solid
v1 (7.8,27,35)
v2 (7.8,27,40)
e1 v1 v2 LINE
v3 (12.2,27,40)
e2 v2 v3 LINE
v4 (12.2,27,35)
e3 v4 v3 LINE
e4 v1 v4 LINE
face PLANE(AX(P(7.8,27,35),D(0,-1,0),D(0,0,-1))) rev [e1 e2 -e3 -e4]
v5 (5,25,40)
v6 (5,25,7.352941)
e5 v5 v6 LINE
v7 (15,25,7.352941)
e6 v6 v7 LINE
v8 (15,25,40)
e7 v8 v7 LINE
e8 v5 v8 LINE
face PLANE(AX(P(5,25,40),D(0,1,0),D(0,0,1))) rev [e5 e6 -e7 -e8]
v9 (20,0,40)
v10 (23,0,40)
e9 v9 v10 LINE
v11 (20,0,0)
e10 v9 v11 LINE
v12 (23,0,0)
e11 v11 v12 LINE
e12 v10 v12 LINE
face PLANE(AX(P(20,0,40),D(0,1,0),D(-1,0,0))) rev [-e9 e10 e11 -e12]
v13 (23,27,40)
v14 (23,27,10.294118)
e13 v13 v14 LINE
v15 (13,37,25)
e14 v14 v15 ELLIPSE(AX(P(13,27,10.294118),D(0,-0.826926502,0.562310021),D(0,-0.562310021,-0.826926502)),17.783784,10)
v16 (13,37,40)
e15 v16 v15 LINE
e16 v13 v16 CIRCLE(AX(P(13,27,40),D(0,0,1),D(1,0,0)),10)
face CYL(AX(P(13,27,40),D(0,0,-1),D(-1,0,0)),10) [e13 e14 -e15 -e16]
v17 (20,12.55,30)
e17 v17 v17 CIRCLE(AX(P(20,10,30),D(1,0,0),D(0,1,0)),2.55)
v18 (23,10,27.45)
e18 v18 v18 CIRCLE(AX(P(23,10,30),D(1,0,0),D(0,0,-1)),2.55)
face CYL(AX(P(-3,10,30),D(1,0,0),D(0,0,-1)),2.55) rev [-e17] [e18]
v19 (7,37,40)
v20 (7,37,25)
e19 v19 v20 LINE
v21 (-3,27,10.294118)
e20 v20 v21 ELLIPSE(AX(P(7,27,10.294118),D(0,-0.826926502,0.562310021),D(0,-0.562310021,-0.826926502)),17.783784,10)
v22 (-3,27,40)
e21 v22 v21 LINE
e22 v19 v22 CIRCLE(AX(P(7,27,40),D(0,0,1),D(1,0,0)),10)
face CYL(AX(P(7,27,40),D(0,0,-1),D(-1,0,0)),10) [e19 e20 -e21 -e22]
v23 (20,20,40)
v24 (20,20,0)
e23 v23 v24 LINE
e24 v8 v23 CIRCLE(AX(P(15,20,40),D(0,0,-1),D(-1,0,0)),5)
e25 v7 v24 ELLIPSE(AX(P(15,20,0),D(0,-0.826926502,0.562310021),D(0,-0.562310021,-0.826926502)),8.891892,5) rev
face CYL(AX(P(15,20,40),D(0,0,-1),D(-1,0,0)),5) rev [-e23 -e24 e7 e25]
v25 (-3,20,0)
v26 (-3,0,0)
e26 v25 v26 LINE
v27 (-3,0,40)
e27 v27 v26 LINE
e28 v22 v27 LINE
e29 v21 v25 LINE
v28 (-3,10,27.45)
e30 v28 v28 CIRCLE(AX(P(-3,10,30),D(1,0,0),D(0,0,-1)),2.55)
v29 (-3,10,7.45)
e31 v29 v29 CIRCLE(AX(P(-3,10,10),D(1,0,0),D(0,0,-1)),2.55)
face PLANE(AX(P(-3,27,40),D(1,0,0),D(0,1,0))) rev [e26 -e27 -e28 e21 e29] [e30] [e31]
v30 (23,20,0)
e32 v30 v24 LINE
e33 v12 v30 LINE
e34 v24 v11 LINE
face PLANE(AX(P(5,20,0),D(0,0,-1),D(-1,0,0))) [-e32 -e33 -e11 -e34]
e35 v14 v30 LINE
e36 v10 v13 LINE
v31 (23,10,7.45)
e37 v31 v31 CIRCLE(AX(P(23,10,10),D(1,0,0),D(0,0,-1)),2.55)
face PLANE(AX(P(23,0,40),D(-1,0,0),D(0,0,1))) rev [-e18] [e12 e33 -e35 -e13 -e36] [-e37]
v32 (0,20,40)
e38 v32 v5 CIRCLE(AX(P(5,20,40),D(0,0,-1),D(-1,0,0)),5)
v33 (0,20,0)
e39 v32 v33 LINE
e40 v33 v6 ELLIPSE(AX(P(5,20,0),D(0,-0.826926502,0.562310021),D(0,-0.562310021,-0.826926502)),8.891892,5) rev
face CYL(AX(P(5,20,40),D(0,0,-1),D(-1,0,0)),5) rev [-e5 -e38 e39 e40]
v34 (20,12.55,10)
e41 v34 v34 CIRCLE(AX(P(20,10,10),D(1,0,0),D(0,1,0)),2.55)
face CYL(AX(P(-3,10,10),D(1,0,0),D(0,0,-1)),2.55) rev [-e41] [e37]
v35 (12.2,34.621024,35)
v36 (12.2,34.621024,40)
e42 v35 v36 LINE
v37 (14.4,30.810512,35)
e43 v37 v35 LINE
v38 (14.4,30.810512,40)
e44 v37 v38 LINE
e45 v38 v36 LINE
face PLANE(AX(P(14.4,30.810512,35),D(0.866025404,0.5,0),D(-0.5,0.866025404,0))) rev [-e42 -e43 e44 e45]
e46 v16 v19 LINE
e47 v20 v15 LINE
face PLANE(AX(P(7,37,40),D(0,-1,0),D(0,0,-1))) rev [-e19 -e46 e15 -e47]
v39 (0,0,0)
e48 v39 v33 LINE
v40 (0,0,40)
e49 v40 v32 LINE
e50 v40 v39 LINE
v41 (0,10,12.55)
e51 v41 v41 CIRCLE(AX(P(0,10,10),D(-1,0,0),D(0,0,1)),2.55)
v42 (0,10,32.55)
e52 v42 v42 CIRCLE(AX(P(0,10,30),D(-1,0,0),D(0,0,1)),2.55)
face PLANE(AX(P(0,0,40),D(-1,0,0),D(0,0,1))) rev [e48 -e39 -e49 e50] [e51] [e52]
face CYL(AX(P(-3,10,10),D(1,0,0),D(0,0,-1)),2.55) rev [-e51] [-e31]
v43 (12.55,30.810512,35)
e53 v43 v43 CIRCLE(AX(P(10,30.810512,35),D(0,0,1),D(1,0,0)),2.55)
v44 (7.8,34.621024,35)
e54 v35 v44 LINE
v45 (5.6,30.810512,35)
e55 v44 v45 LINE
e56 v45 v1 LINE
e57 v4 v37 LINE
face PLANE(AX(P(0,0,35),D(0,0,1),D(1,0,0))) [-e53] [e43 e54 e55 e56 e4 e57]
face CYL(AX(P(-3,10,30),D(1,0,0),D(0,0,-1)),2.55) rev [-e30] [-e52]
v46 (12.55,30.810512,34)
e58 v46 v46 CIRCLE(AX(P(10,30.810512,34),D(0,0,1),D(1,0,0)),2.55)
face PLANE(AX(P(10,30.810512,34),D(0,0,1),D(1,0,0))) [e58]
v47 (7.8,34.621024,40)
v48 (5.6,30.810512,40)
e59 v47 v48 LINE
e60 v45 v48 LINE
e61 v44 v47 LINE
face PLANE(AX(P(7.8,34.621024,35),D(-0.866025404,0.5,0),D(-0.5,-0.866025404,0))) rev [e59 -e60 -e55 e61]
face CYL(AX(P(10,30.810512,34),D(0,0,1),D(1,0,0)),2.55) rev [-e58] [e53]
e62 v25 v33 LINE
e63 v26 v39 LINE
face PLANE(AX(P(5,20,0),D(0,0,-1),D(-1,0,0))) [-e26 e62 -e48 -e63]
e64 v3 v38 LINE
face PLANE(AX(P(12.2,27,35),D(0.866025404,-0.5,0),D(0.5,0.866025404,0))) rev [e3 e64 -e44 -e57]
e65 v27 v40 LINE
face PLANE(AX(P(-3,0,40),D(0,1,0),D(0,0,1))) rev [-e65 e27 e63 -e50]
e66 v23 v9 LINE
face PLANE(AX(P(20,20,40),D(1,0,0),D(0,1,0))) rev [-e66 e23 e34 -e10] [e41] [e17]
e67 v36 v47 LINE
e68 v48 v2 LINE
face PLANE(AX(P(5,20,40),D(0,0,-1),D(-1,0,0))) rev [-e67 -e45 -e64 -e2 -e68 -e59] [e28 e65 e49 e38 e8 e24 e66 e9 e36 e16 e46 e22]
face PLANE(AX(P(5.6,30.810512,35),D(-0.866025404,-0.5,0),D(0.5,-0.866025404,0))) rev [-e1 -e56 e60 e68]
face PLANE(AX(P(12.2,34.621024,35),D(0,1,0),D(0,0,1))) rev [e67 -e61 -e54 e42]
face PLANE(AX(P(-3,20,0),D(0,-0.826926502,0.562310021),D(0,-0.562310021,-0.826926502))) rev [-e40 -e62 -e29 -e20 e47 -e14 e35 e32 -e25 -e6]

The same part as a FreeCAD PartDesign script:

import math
import FreeCAD as App
import Part
import Sketcher
Q = App.Units.Quantity

doc = App.newDocument("Part")
params = doc.addObject("Spreadsheet::Sheet", "Params")
for row, (alias, value) in enumerate([
    ("sketch1_radius", "5 mm"),
    ("sketch1_radius2", "10 mm"),
    ("sketch1_width", "10 mm"),
    ("sketch1_width2", "3 mm"),
    ("sketch1_height", "20 mm"),
    ("pad1_length", "40 mm"),
    ("sketch2_width", "17 mm"),
    ("sketch2_height", "25 mm"),
    ("sketch3_diameter", "5.1 mm"),
    ("sketch4_width", "4.4 mm"),
    ("sketch4_length", "4.4 mm"),
    ("pocket3_length", "5 mm"),
    ("sketch5_diameter", "5.1 mm"),
    ("pocket4_length", "1 mm"),
], start=1):
    params.set(f"A{row}", alias)
    params.set(f"B{row}", "=" + value)
    params.setAlias(f"B{row}", alias)

body = doc.addObject("PartDesign::Body", "Body")

sketch1 = doc.addObject("Sketcher::SketchObject", "Sketch")
body.addObject(sketch1)
sketch1.AttachmentSupport = (doc.XY_Plane, [""])
sketch1.MapMode = "FlatFace"
sketch1.addGeometry(Part.LineSegment(App.Vector(0, 0, 0), App.Vector(0, 20, 0)), False)
sketch1.addGeometry(Part.ArcOfCircle(Part.Circle(App.Vector(5, 20, 0), App.Vector(0, 0, 1), 5), math.radians(90), math.radians(180)), False)
sketch1.addGeometry(Part.LineSegment(App.Vector(5, 25, 0), App.Vector(15, 25, 0)), False)
sketch1.addGeometry(Part.ArcOfCircle(Part.Circle(App.Vector(15, 20, 0), App.Vector(0, 0, 1), 5), math.radians(0), math.radians(90)), False)
sketch1.addGeometry(Part.LineSegment(App.Vector(20, 20, 0), App.Vector(20, 0, 0)), False)
sketch1.addGeometry(Part.LineSegment(App.Vector(20, 0, 0), App.Vector(23, 0, 0)), False)
sketch1.addGeometry(Part.LineSegment(App.Vector(23, 0, 0), App.Vector(23, 27, 0)), False)
sketch1.addGeometry(Part.ArcOfCircle(Part.Circle(App.Vector(13, 27, 0), App.Vector(0, 0, 1), 10), math.radians(0), math.radians(90)), False)
sketch1.addGeometry(Part.LineSegment(App.Vector(13, 37, 0), App.Vector(7, 37, 0)), False)
sketch1.addGeometry(Part.ArcOfCircle(Part.Circle(App.Vector(7, 27, 0), App.Vector(0, 0, 1), 10), math.radians(90), math.radians(180)), False)
sketch1.addGeometry(Part.LineSegment(App.Vector(-3, 27, 0), App.Vector(-3, 0, 0)), False)
sketch1.addGeometry(Part.LineSegment(App.Vector(-3, 0, 0), App.Vector(0, 0, 0)), False)
sketch1.addConstraint(Sketcher.Constraint("Tangent", 0, 2, 1, 2))
sketch1.addConstraint(Sketcher.Constraint("Tangent", 1, 1, 2, 1))
sketch1.addConstraint(Sketcher.Constraint("Tangent", 2, 2, 3, 2))
sketch1.addConstraint(Sketcher.Constraint("Tangent", 3, 1, 4, 1))
sketch1.addConstraint(Sketcher.Constraint("Coincident", 4, 2, 5, 1))
sketch1.addConstraint(Sketcher.Constraint("Coincident", 5, 2, 6, 1))
sketch1.addConstraint(Sketcher.Constraint("Tangent", 6, 2, 7, 1))
sketch1.addConstraint(Sketcher.Constraint("Tangent", 7, 2, 8, 1))
sketch1.addConstraint(Sketcher.Constraint("Tangent", 8, 2, 9, 1))
sketch1.addConstraint(Sketcher.Constraint("Tangent", 9, 2, 10, 1))
sketch1.addConstraint(Sketcher.Constraint("Coincident", 10, 2, 11, 1))
sketch1.addConstraint(Sketcher.Constraint("Coincident", 11, 2, 0, 1))
sketch1.addConstraint(Sketcher.Constraint("Vertical", 0))
sketch1.addConstraint(Sketcher.Constraint("Horizontal", 2))
sketch1.addConstraint(Sketcher.Constraint("Vertical", 4))
sketch1.addConstraint(Sketcher.Constraint("Horizontal", 5))
sketch1.addConstraint(Sketcher.Constraint("Vertical", 6))
sketch1.addConstraint(Sketcher.Constraint("Horizontal", 8))
sketch1.addConstraint(Sketcher.Constraint("Vertical", 10))
sketch1.addConstraint(Sketcher.Constraint("Horizontal", 11))
sketch1.addConstraint(Sketcher.Constraint("Coincident", 11, 2, -1, 1))
sketch1.addConstraint(Sketcher.Constraint("Equal", 1, 3))
sketch1.addConstraint(Sketcher.Constraint("Equal", 7, 9))
sketch1.addConstraint(Sketcher.Constraint("PointOnObject", 4, 2, -1))
sketch1.addConstraint(Sketcher.Constraint("Equal", 5, 11))
sketch1.addConstraint(Sketcher.Constraint("Radius", 1, Q("5 mm")))
sketch1.addConstraint(Sketcher.Constraint("Radius", 7, Q("10 mm")))
sketch1.addConstraint(Sketcher.Constraint("DistanceX", 2, 1, 2, 2, Q("10 mm")))
sketch1.addConstraint(Sketcher.Constraint("DistanceX", 5, 1, 5, 2, Q("3 mm")))
sketch1.addConstraint(Sketcher.Constraint("DistanceY", 0, 1, 0, 2, Q("20 mm")))
sketch1.addConstraint(Sketcher.Constraint("DistanceY", 6, 1, 6, 2, Q("27 mm")))
sketch1.setExpression("Constraints[25]", "Params.sketch1_radius")
sketch1.setExpression("Constraints[26]", "Params.sketch1_radius2")
sketch1.setExpression("Constraints[27]", "Params.sketch1_width")
sketch1.setExpression("Constraints[28]", "Params.sketch1_width2")
sketch1.setExpression("Constraints[29]", "Params.sketch1_height")
pad1 = doc.addObject("PartDesign::Pad", "Pad")
body.addObject(pad1)
pad1.Profile = sketch1
pad1.setExpression("Length", "Params.pad1_length")

sketch2 = doc.addObject("Sketcher::SketchObject", "Sketch001")
body.addObject(sketch2)
sketch2.AttachmentSupport = (doc.YZ_Plane, [""])
sketch2.MapMode = "FlatFace"
sketch2.AttachmentOffset = App.Placement(App.Vector(0, 0, 23), App.Rotation())
sketch2.addGeometry(Part.LineSegment(App.Vector(37, 25, 0), App.Vector(20, 0, 0)), False)
sketch2.addGeometry(Part.LineSegment(App.Vector(20, 0, 0), App.Vector(37, 0, 0)), False)
sketch2.addGeometry(Part.LineSegment(App.Vector(37, 0, 0), App.Vector(37, 25, 0)), False)
sketch2.addConstraint(Sketcher.Constraint("Coincident", 0, 2, 1, 1))
sketch2.addConstraint(Sketcher.Constraint("Coincident", 1, 2, 2, 1))
sketch2.addConstraint(Sketcher.Constraint("Coincident", 2, 2, 0, 1))
sketch2.addConstraint(Sketcher.Constraint("Horizontal", 1))
sketch2.addConstraint(Sketcher.Constraint("Vertical", 2))
sketch2.addConstraint(Sketcher.Constraint("PointOnObject", 0, 2, -1))
sketch2.addConstraint(Sketcher.Constraint("DistanceX", 1, 1, 1, 2, Q("17 mm")))
sketch2.addConstraint(Sketcher.Constraint("DistanceY", 2, 1, 2, 2, Q("25 mm")))
sketch2.addConstraint(Sketcher.Constraint("DistanceX", -1, 1, 0, 2, Q("20 mm")))
sketch2.setExpression("Constraints[6]", "Params.sketch2_width")
sketch2.setExpression("Constraints[7]", "Params.sketch2_height")
pocket1 = doc.addObject("PartDesign::Pocket", "Pocket")
body.addObject(pocket1)
pocket1.Profile = sketch2
pocket1.Type = "ThroughAll"

sketch3 = doc.addObject("Sketcher::SketchObject", "Sketch002")
body.addObject(sketch3)
sketch3.AttachmentSupport = (doc.YZ_Plane, [""])
sketch3.MapMode = "FlatFace"
sketch3.AttachmentOffset = App.Placement(App.Vector(0, 0, 23), App.Rotation())
sketch3.addGeometry(Part.Circle(App.Vector(10, 30, 0), App.Vector(0, 0, 1), 2.5), False)
sketch3.addGeometry(Part.Circle(App.Vector(10, 10, 0), App.Vector(0, 0, 1), 2.5), False)
sketch3.addConstraint(Sketcher.Constraint("Equal", 0, 1))
sketch3.addConstraint(Sketcher.Constraint("Vertical", 0, 3, 1, 3))
sketch3.addConstraint(Sketcher.Constraint("Diameter", 0, Q("5.1 mm")))
sketch3.addConstraint(Sketcher.Constraint("DistanceX", -1, 1, 0, 3, Q("10 mm")))
sketch3.addConstraint(Sketcher.Constraint("DistanceY", -1, 1, 0, 3, Q("30 mm")))
sketch3.addConstraint(Sketcher.Constraint("DistanceY", -1, 1, 1, 3, Q("10 mm")))
sketch3.setExpression("Constraints[2]", "Params.sketch3_diameter")
pocket2 = doc.addObject("PartDesign::Pocket", "Pocket001")
body.addObject(pocket2)
pocket2.Profile = sketch3
pocket2.Type = "ThroughAll"

sketch4 = doc.addObject("Sketcher::SketchObject", "Sketch003")
body.addObject(sketch4)
sketch4.AttachmentSupport = (doc.XY_Plane, [""])
sketch4.MapMode = "FlatFace"
sketch4.AttachmentOffset = App.Placement(App.Vector(0, 0, 40), App.Rotation())
sketch4.addGeometry(Part.LineSegment(App.Vector(5.6, 30.8, 0), App.Vector(7.8, 27, 0)), False)
sketch4.addGeometry(Part.LineSegment(App.Vector(7.8, 27, 0), App.Vector(12.2, 27, 0)), False)
sketch4.addGeometry(Part.LineSegment(App.Vector(12.2, 27, 0), App.Vector(14.4, 30.8, 0)), False)
sketch4.addGeometry(Part.LineSegment(App.Vector(14.4, 30.8, 0), App.Vector(12.2, 34.6, 0)), False)
sketch4.addGeometry(Part.LineSegment(App.Vector(12.2, 34.6, 0), App.Vector(7.8, 34.6, 0)), False)
sketch4.addGeometry(Part.LineSegment(App.Vector(7.8, 34.6, 0), App.Vector(5.6, 30.8, 0)), False)
sketch4.addConstraint(Sketcher.Constraint("Coincident", 0, 2, 1, 1))
sketch4.addConstraint(Sketcher.Constraint("Coincident", 1, 2, 2, 1))
sketch4.addConstraint(Sketcher.Constraint("Coincident", 2, 2, 3, 1))
sketch4.addConstraint(Sketcher.Constraint("Coincident", 3, 2, 4, 1))
sketch4.addConstraint(Sketcher.Constraint("Coincident", 4, 2, 5, 1))
sketch4.addConstraint(Sketcher.Constraint("Coincident", 5, 2, 0, 1))
sketch4.addConstraint(Sketcher.Constraint("Horizontal", 1))
sketch4.addConstraint(Sketcher.Constraint("Horizontal", 4))
sketch4.addConstraint(Sketcher.Constraint("Parallel", 0, 3))
sketch4.addConstraint(Sketcher.Constraint("Parallel", 2, 5))
sketch4.addConstraint(Sketcher.Constraint("Horizontal", 2, 2, 5, 2))
sketch4.addConstraint(Sketcher.Constraint("Vertical", 1, 2, 3, 2))
sketch4.addConstraint(Sketcher.Constraint("Vertical", 0, 2, 4, 2))
sketch4.addConstraint(Sketcher.Constraint("Angle", 0, Q("-60 deg")))
sketch4.addConstraint(Sketcher.Constraint("DistanceX", 1, 1, 1, 2, Q("4.4 mm")))
sketch4.addConstraint(Sketcher.Constraint("DistanceY", -1, 1, 0, 2, Q("27 mm")))
sketch4.addConstraint(Sketcher.Constraint("Distance", 0, Q("4.4 mm")))
sketch4.addConstraint(Sketcher.Constraint("DistanceX", -1, 1, 0, 2, Q("7.8 mm")))
sketch4.setExpression("Constraints[14]", "Params.sketch4_width")
sketch4.setExpression("Constraints[16]", "Params.sketch4_length")
pocket3 = doc.addObject("PartDesign::Pocket", "Pocket002")
body.addObject(pocket3)
pocket3.Profile = sketch4
pocket3.setExpression("Length", "Params.pocket3_length")

sketch5 = doc.addObject("Sketcher::SketchObject", "Sketch004")
body.addObject(sketch5)
sketch5.AttachmentSupport = (doc.XY_Plane, [""])
sketch5.MapMode = "FlatFace"
sketch5.AttachmentOffset = App.Placement(App.Vector(0, 0, 35), App.Rotation())
sketch5.addGeometry(Part.Circle(App.Vector(10, 30.8, 0), App.Vector(0, 0, 1), 2.5), False)
sketch5.addConstraint(Sketcher.Constraint("Diameter", 0, Q("5.1 mm")))
sketch5.addConstraint(Sketcher.Constraint("DistanceX", -1, 1, 0, 3, Q("10 mm")))
sketch5.addConstraint(Sketcher.Constraint("DistanceY", -1, 1, 0, 3, Q("30.810512 mm")))
sketch5.setExpression("Constraints[0]", "Params.sketch5_diameter")
pocket4 = doc.addObject("PartDesign::Pocket", "Pocket003")
body.addObject(pocket4)
pocket4.Profile = sketch5
pocket4.setExpression("Length", "Params.pocket4_length")

doc.recompute()
